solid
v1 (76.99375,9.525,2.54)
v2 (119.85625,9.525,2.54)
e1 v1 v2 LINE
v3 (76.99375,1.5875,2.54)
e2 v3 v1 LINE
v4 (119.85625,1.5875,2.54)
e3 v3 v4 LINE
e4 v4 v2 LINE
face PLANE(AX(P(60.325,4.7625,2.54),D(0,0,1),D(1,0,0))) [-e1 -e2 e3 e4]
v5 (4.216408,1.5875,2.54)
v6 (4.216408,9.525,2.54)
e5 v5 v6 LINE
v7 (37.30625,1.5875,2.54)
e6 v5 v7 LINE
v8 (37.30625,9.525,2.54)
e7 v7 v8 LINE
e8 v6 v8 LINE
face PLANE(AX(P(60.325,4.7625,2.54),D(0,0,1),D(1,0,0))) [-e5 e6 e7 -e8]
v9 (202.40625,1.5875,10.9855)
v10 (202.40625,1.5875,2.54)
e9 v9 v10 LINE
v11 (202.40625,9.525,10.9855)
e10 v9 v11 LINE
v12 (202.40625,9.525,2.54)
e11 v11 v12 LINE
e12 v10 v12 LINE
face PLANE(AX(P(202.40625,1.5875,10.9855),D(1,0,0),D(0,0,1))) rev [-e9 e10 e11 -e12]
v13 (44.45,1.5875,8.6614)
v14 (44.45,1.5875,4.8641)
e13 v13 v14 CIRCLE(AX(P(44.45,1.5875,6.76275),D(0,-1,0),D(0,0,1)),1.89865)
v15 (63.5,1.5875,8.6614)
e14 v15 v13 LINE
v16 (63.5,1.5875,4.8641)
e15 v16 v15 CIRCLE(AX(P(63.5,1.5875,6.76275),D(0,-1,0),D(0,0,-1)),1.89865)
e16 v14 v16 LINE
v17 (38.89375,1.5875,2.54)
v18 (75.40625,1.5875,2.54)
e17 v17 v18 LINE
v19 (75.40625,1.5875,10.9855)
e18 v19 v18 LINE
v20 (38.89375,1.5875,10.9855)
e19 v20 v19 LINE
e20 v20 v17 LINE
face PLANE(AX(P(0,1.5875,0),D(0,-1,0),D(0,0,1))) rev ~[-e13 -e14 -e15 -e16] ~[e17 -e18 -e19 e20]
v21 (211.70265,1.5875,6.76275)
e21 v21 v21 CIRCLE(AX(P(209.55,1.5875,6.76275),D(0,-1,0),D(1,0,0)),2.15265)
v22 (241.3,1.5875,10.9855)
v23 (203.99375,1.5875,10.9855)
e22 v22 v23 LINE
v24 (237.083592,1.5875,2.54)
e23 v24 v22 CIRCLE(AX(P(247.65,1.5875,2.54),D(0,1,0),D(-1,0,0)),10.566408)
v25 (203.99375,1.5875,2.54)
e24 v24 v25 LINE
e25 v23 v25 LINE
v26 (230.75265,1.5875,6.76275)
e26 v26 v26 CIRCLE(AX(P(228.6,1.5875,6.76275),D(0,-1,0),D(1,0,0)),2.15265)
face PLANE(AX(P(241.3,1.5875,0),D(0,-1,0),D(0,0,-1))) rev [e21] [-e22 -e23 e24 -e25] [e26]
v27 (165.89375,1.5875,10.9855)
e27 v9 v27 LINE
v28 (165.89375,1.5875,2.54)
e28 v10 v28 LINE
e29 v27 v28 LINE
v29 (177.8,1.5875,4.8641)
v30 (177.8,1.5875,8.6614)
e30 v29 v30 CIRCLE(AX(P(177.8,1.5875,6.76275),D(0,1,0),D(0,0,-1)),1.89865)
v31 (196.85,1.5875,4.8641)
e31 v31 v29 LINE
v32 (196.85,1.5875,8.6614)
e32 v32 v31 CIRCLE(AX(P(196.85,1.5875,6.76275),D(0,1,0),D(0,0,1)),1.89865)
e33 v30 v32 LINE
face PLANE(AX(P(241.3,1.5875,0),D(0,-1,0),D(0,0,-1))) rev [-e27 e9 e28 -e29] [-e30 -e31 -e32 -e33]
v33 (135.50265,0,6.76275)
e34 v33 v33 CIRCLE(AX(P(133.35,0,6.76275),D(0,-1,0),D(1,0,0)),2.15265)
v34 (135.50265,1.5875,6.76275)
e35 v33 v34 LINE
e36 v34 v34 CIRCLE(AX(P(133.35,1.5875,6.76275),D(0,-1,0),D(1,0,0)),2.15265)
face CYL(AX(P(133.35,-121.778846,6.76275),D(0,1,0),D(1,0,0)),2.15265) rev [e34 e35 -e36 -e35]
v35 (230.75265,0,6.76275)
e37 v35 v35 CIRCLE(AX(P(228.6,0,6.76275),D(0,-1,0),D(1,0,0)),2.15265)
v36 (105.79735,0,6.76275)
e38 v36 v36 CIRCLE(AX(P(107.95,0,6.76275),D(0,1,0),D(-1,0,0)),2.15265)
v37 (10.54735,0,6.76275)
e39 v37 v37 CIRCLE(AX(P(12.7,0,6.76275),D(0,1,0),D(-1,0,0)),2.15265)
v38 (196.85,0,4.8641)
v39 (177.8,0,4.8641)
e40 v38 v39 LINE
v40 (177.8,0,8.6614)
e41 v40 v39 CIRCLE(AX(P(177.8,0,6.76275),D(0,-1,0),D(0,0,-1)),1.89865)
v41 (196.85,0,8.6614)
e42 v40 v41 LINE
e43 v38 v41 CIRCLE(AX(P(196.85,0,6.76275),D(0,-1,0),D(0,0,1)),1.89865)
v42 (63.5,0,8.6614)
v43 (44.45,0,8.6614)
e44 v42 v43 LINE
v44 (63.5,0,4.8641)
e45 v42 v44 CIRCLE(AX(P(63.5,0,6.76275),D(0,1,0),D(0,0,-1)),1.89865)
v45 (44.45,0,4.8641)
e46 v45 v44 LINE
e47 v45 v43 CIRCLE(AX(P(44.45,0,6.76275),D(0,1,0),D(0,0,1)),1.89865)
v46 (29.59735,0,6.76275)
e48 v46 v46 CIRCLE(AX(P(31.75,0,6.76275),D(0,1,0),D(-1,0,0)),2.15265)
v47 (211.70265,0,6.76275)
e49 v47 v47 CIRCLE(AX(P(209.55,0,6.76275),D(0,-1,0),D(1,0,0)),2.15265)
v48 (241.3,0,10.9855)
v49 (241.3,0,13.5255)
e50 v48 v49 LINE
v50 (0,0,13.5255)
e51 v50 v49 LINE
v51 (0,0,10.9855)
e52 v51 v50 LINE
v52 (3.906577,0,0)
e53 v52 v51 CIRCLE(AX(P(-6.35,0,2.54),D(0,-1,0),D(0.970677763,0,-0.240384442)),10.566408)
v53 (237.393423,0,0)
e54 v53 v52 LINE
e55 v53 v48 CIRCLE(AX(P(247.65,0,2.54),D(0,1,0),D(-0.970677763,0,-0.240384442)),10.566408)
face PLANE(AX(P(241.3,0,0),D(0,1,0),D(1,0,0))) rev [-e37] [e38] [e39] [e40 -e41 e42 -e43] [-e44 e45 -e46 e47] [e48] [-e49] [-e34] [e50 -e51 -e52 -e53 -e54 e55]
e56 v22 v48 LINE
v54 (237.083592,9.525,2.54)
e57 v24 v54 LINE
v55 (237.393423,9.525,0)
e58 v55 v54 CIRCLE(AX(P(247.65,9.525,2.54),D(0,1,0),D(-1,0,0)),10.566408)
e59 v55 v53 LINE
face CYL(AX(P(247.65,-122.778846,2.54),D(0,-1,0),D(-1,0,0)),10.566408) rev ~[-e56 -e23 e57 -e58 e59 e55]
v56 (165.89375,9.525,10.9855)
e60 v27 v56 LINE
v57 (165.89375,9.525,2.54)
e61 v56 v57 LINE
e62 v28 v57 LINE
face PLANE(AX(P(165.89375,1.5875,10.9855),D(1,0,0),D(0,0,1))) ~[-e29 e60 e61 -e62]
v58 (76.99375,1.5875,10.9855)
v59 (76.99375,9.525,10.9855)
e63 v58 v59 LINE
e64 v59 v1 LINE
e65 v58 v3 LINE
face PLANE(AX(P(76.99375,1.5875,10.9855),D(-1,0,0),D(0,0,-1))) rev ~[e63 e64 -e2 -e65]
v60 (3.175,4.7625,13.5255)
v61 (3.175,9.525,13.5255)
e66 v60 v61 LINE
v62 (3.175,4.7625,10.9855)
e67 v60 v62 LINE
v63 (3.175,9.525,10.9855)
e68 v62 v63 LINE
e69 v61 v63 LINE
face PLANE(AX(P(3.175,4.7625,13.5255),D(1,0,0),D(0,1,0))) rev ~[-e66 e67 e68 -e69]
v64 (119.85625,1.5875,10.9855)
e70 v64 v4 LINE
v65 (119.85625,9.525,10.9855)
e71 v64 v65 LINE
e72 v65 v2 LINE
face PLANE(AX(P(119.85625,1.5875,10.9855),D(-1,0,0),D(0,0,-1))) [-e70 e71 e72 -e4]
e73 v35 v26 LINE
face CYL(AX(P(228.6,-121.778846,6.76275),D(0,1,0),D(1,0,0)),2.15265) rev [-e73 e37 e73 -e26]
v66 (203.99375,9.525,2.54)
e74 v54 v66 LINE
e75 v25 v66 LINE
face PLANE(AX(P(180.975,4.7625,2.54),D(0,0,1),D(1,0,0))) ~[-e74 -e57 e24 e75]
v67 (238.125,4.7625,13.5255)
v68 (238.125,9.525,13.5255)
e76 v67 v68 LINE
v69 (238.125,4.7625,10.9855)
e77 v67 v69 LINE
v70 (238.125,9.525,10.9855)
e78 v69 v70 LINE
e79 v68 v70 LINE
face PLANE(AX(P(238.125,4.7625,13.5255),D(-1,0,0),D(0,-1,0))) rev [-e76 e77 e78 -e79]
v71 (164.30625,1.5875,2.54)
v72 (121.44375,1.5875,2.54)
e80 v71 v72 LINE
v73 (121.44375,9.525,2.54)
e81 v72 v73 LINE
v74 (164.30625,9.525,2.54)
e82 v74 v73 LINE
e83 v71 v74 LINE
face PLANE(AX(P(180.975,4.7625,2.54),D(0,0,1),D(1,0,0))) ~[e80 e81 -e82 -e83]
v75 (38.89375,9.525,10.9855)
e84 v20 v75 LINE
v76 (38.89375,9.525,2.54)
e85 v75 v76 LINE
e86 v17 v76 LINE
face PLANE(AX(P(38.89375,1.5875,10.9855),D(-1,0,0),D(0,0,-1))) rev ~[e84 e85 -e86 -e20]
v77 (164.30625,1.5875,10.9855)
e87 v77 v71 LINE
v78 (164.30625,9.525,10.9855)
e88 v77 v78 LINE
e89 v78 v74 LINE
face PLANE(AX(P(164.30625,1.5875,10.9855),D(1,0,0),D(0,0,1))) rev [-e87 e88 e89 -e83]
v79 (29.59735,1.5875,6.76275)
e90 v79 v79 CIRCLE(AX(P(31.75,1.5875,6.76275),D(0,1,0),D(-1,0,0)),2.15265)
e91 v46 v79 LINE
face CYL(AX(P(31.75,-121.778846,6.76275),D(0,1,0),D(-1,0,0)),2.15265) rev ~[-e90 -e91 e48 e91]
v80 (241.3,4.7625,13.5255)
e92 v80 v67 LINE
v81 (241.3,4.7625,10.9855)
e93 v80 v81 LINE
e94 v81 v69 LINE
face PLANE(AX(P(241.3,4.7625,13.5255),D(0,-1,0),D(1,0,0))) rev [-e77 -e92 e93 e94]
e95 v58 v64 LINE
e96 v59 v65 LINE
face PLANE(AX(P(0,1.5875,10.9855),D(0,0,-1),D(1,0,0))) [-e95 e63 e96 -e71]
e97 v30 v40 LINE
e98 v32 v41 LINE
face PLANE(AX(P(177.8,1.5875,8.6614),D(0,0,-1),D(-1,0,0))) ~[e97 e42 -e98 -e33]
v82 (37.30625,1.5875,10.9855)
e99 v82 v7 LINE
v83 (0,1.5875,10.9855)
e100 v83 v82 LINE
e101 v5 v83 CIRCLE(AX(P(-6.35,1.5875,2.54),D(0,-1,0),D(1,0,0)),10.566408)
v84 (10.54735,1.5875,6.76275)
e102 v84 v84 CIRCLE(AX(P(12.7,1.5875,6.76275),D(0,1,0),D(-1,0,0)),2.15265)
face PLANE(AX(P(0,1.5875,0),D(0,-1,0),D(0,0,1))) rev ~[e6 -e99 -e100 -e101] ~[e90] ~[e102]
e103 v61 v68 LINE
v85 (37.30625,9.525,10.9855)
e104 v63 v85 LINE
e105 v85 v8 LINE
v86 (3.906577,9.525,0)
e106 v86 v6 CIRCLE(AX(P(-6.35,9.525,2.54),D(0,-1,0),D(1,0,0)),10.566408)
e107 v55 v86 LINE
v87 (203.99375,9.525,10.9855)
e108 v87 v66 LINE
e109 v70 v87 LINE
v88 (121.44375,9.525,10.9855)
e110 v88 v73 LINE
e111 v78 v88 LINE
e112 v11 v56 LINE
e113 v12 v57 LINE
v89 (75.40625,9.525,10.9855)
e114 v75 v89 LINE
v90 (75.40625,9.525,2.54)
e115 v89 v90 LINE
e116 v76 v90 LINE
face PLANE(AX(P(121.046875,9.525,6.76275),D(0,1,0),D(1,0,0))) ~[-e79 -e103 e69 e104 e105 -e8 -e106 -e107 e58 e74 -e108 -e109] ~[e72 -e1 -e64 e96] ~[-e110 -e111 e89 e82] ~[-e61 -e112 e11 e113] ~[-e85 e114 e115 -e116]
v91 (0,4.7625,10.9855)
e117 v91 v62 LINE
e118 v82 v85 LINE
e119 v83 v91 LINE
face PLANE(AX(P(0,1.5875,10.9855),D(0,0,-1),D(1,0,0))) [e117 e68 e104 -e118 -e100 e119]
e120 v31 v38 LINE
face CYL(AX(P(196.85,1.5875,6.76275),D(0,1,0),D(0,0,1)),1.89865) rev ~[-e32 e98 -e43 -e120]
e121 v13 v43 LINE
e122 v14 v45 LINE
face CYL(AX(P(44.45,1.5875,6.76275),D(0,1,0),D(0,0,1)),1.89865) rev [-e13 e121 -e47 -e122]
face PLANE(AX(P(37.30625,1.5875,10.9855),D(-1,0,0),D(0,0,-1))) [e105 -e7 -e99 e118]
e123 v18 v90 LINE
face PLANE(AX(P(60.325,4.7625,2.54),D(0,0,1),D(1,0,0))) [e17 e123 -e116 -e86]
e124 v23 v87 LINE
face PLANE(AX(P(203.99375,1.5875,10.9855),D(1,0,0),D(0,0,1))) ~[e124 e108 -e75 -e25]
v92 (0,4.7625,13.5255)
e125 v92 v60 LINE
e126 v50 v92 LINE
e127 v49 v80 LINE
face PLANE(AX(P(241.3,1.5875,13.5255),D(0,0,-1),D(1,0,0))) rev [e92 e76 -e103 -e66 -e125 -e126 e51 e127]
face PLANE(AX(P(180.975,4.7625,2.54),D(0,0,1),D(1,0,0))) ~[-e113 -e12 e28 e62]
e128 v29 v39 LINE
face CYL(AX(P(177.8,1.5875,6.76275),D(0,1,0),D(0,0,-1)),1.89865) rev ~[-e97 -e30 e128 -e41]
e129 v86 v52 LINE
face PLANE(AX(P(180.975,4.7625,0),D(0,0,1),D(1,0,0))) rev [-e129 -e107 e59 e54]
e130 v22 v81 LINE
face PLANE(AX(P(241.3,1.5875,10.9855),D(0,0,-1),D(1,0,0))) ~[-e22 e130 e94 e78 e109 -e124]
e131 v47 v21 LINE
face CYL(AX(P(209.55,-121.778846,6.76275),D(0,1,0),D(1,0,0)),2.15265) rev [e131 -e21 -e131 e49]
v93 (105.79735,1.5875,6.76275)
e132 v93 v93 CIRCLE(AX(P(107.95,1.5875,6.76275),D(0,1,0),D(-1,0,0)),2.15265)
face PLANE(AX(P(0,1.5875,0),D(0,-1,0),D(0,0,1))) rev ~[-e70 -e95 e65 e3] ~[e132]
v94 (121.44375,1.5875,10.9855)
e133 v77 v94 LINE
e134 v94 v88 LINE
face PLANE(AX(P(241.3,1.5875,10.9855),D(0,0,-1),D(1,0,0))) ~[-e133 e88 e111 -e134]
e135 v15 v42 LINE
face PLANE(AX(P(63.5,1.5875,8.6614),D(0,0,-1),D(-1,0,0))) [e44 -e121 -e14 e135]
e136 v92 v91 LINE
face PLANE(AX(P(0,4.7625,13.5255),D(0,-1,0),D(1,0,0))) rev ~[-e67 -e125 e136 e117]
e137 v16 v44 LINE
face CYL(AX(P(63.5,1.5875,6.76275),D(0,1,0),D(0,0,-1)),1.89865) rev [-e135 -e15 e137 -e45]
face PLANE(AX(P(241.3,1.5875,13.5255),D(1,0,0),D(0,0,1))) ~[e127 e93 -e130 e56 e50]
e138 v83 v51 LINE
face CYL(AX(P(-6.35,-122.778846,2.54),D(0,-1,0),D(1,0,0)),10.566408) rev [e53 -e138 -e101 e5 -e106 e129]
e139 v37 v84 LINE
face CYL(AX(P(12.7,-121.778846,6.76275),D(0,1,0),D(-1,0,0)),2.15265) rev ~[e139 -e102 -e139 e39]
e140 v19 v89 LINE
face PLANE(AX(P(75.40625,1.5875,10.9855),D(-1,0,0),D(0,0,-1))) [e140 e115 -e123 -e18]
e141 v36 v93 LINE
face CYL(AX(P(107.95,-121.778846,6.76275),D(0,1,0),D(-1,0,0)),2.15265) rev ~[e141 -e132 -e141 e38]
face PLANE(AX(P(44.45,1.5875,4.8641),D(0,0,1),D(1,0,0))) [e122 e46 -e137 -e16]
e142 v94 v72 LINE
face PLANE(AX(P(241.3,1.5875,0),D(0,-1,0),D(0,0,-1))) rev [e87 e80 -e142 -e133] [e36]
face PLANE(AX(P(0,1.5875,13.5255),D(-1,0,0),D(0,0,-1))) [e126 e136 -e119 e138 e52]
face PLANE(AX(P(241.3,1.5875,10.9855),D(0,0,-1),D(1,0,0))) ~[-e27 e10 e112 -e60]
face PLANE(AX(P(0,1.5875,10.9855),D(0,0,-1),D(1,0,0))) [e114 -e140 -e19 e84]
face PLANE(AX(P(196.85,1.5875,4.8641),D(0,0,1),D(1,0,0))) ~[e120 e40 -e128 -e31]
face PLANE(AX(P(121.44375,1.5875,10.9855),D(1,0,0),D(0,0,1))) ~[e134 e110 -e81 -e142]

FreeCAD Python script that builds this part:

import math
import FreeCAD as App
import Part
import Sketcher
from FreeCAD import Vector
Q = App.Units.Quantity


def add_polygon(sketch, points):
    """Adds a closed chain of lines whose ends are joined by coincident constraints."""
    first, n = sketch.GeometryCount, len(points)
    for a, b in zip(points, points[1:] + points[:1]):
        sketch.addGeometry(Part.LineSegment(App.Vector(*a, 0), App.Vector(*b, 0)), False)
    for i in range(n):
        sketch.addConstraint(Sketcher.Constraint("Coincident", first + i, 2, first + (i + 1) % n, 1))

doc = App.newDocument("Part")
body = doc.addObject("PartDesign::Body", "Body")

sketch1 = body.newObject("Sketcher::SketchObject", "Sketch")
sketch1.AttachmentSupport = (doc.getObject("XY_Plane"), [""])
sketch1.MapMode = "FlatFace"
add_polygon(sketch1, [(0, 10), (0, 0), (121, 0), (121, 10)])
sketch1.addConstraint([
    Sketcher.Constraint("Vertical", 0),
    Sketcher.Constraint("Horizontal", 1),
    Sketcher.Constraint("Vertical", 2),
    Sketcher.Constraint("Horizontal", 3),
    Sketcher.Constraint("Coincident", 0, 2, -1, 1),
    Sketcher.Constraint("DistanceX", 1, 1, 1, 2, Q("4.75 in")),
    Sketcher.Constraint("DistanceY", 0, 2, 0, 1, Q("0.375 in")),
])
pad1 = body.newObject("PartDesign::Pad", "Pad")
pad1.Profile = sketch1
pad1.Length = Q("0.1 in")

sketch2 = body.newObject("Sketcher::SketchObject", "Sketch001")
sketch2.AttachmentSupport = (doc.getObject("YZ_Plane"), [""])
sketch2.MapMode = "FlatFace"
add_polygon(sketch2, [(1.6, 0), (0, 0), (0, 13.5), (1.6, 13.5)])
sketch2.addConstraint([
    Sketcher.Constraint("Horizontal", 0),
    Sketcher.Constraint("Vertical", 1),
    Sketcher.Constraint("Horizontal", 2),
    Sketcher.Constraint("Vertical", 3),
    Sketcher.Constraint("Coincident", 0, 2, -1, 1),
    Sketcher.Constraint("DistanceX", 0, 2, 0, 1, Q("0.0625 in")),
    Sketcher.Constraint("DistanceY", 1, 1, 1, 2, Q("0.5325 in")),
])
pad2 = body.newObject("PartDesign::Pad", "Pad001")
pad2.Profile = sketch2
pad2.Length = Q("4.75 in")

sketch3 = body.newObject("Sketcher::SketchObject", "Sketch002")
sketch3.AttachmentSupport = (doc.getObject("XZ_Plane"), [""])
sketch3.MapMode = "FlatFace"
sketch3.AttachmentOffset = App.Placement(Vector(0, 0, -0.0625 * 25.4), App.Rotation())
add_polygon(sketch3, [(0, 11), (0, 13.5), (120.7, 13.5), (120.7, 11)])
sketch3.addConstraint([
    Sketcher.Constraint("Vertical", 0),
    Sketcher.Constraint("Horizontal", 1),
    Sketcher.Constraint("Vertical", 2),
    Sketcher.Constraint("Horizontal", 3),
    Sketcher.Constraint("PointOnObject", 0, 2, -2),
    Sketcher.Constraint("DistanceY", 0, 1, 0, 2, Q("0.1 in")),
    Sketcher.Constraint("DistanceX", 1, 1, 1, 2, Q("4.75 in")),
    Sketcher.Constraint("DistanceY", -1, 1, 0, 2, Q("0.5325 in")),
])
pad3 = body.newObject("PartDesign::Pad", "Pad002")
pad3.Profile = sketch3
pad3.Length = Q("0.3125 in")
pad3.Reversed = True

sketch4 = body.newObject("Sketcher::SketchObject", "Sketch003")
sketch4.AttachmentSupport = (doc.getObject("XZ_Plane"), [""])
sketch4.MapMode = "FlatFace"
sketch4.AttachmentOffset = App.Placement(Vector(0, 0, -0.0625 * 25.4), App.Rotation())
sketch4.addGeometry([
    Part.LineSegment(Vector(44.5, 8.7, 0), Vector(63.5, 8.7, 0)),
    Part.ArcOfCircle(Part.Circle(Vector(63.5, 6.8, 0), Vector(0, 0, 1), 1.9), math.radians(-90), math.radians(90)),
    Part.LineSegment(Vector(63.5, 4.9, 0), Vector(44.5, 4.9, 0)),
    Part.ArcOfCircle(Part.Circle(Vector(44.5, 6.8, 0), Vector(0, 0, 1), 1.9), math.radians(90), math.radians(270)),
], False)
sketch4.addConstraint([
    Sketcher.Constraint("Tangent", 0, 2, 1, 2),
    Sketcher.Constraint("Tangent", 1, 1, 2, 1),
    Sketcher.Constraint("Tangent", 2, 2, 3, 2),
    Sketcher.Constraint("Tangent", 3, 1, 0, 1),
    Sketcher.Constraint("Horizontal", 0),
    Sketcher.Constraint("Horizontal", 2),
    Sketcher.Constraint("DistanceX", 0, 1, 0, 2, Q("0.75 in")),
    Sketcher.Constraint("DistanceX", -1, 1, 1, 3, Q("2.5 in")),
    Sketcher.Constraint("DistanceY", -1, 1, 0, 2, Q("0.341 in")),
    Sketcher.Constraint("Radius", 1, Q("1.89865 mm")),
])
pocket1 = body.newObject("PartDesign::Pocket", "Pocket")
pocket1.Profile = sketch4
pocket1.Type = "ThroughAll"
pocket1.Reversed = True

sketch5 = body.newObject("Sketcher::SketchObject", "Sketch004")
sketch5.AttachmentSupport = (doc.getObject("XZ_Plane"), [""])
sketch5.MapMode = "FlatFace"
sketch5.addGeometry([
    Part.Circle(Vector(31.8, 6.8, 0), Vector(0, 0, 1), 2.2),
    Part.Circle(Vector(12.7, 6.8, 0), Vector(0, 0, 1), 2.2),
    Part.Circle(Vector(108, 6.8, 0), Vector(0, 0, 1), 2.2),
], False)
sketch5.addConstraint([
    Sketcher.Constraint("Equal", 0, 1),
    Sketcher.Constraint("Equal", 1, 2),
    Sketcher.Constraint("Horizontal", 0, 3, 1, 3),
    Sketcher.Constraint("Horizontal", 1, 3, 2, 3),
    Sketcher.Constraint("DistanceX", 0, 3, 2, 3, Q("3 in")),
    Sketcher.Constraint("Diameter", 0, Q("0.1695 in")),
    Sketcher.Constraint("DistanceX", -1, 1, 1, 3, Q("0.5 in")),
    Sketcher.Constraint("DistanceX", -1, 1, 0, 3, Q("1.25 in")),
    Sketcher.Constraint("DistanceY", -1, 1, 0, 3, Q("6.76275 mm")),
])
doc.recompute()
hole = body.newObject("PartDesign::Hole", "Hole")
hole.Profile = sketch5
hole.ThreadType = "None"
hole.Diameter = Q("0.1695 in")
hole.DepthType = "ThroughAll"

sketch6 = body.newObject("Sketcher::SketchObject", "Sketch005")
sketch6.AttachmentSupport = (doc.getObject("XZ_Plane"), [""])
sketch6.MapMode = "FlatFace"
sketch6.AttachmentOffset = App.Placement(Vector(0, 0, -0.0625 * 25.4), App.Rotation())
add_polygon(sketch6, [(37.3, 2.5), (37.3, 11), (38.9, 11), (38.9, 2.5)])
add_polygon(sketch6, [(75.4, 2.5), (75.4, 11), (77, 11), (77, 2.5)])
add_polygon(sketch6, [(119.9, 2.5), (119.9, 11), (120.7, 11), (120.7, 2.5)])
sketch6.addConstraint([
    Sketcher.Constraint("Vertical", 0),
    Sketcher.Constraint("Horizontal", 1),
    Sketcher.Constraint("Vertical", 2),
    Sketcher.Constraint("Horizontal", 3),
    Sketcher.Constraint("Vertical", 4),
    Sketcher.Constraint("Horizontal", 5),
    Sketcher.Constraint("Vertical", 6),
    Sketcher.Constraint("Horizontal", 7),
    Sketcher.Constraint("Vertical", 8),
    Sketcher.Constraint("Horizontal", 9),
    Sketcher.Constraint("Vertical", 10),
    Sketcher.Constraint("Horizontal", 11),
    Sketcher.Constraint("Horizontal", 1, 2, 4, 2),
    Sketcher.Constraint("Horizontal", 3, 2, 6, 2),
    Sketcher.Constraint("Horizontal", 5, 2, 8, 2),
    Sketcher.Constraint("Horizontal", 7, 2, 10, 2),
    Sketcher.Constraint("Equal", 3, 5),
    Sketcher.Constraint("DistanceY", -1, 1, 2, 2, Q("0.1 in")),
    Sketcher.Constraint("DistanceX", 0, 2, 4, 2, Q("1.5 in")),
    Sketcher.Constraint("DistanceX", 1, 1, 1, 2, Q("0.0625 in")),
    Sketcher.Constraint("DistanceX", 9, 1, 9, 2, Q("0.03125 in")),
    Sketcher.Constraint("DistanceX", -1, 1, 9, 2, Q("4.75 in")),
    Sketcher.Constraint("DistanceX", 4, 2, 8, 2, Q("1.75 in")),
    Sketcher.Constraint("DistanceY", 0, 1, 0, 2, Q("0.3325 in")),
])
pad4 = body.newObject("PartDesign::Pad", "Pad003")
pad4.Profile = sketch6
pad4.Length = Q("0.3125 in")
pad4.Reversed = True

sketch7 = body.newObject("Sketcher::SketchObject", "Sketch006")
sketch7.AttachmentSupport = (doc.getObject("XZ_Plane"), [""])
sketch7.MapMode = "FlatFace"
sketch7.addGeometry(Part.Circle(Vector(-6, 3, 0), Vector(0, 0, 1), 11), False)
sketch7.addConstraint([
    Sketcher.Constraint("DistanceY", -1, 1, 0, 3, Q("0.1 in")),
    Sketcher.Constraint("DistanceX", 0, 3, -1, 1, Q("0.25 in")),
    Sketcher.Constraint("Diameter", 0, Q("21.132815 mm")),
])
pocket2 = body.newObject("PartDesign::Pocket", "Pocket001")
pocket2.Profile = sketch7
pocket2.Type = "ThroughAll"
pocket2.Midplane = True

sketch8 = body.newObject("Sketcher::SketchObject", "Sketch007")
sketch8.AttachmentSupport = (doc.getObject("XY_Plane"), [""])
sketch8.MapMode = "FlatFace"
sketch8.AttachmentOffset = App.Placement(Vector(0, 0, 0.5325 * 25.4), App.Rotation())
add_polygon(sketch8, [(0, 9.5), (0, 4.8), (3.2, 4.8), (3.2, 9.5)])
sketch8.addConstraint([
    Sketcher.Constraint("Vertical", 0),
    Sketcher.Constraint("Horizontal", 1),
    Sketcher.Constraint("Vertical", 2),
    Sketcher.Constraint("Horizontal", 3),
    Sketcher.Constraint("PointOnObject", 0, 2, -2),
    Sketcher.Constraint("DistanceX", 1, 1, 1, 2, Q("0.125 in")),
    Sketcher.Constraint("DistanceY", 0, 2, 0, 1, Q("0.1875 in")),
    Sketcher.Constraint("DistanceY", -1, 1, 0, 2, Q("0.1875 in")),
])
pocket3 = body.newObject("PartDesign::Pocket", "Pocket002")
pocket3.Profile = sketch8
pocket3.Type = "UpToFirst"
body2 = doc.addObject("PartDesign::Body", "Body001")
doc.recompute()

body2.BaseFeature = body
doc.recompute()

mirroring = doc.addObject("Part::Mirroring", "Mirroring")
mirroring.Source = body
mirroring.Base = Vector(120.65, 4.7625, 6.76275)
mirroring.Normal = Vector(1, 0, 0)
body3 = doc.addObject("PartDesign::Body", "Body002")
body3.BaseFeature = mirroring
boolean = body2.newObject("PartDesign::Boolean", "Boolean")
boolean.Type = "Fuse"
boolean.addObjects([body3])
doc.recompute()
mirroring.Visibility = False

doc.recompute()
